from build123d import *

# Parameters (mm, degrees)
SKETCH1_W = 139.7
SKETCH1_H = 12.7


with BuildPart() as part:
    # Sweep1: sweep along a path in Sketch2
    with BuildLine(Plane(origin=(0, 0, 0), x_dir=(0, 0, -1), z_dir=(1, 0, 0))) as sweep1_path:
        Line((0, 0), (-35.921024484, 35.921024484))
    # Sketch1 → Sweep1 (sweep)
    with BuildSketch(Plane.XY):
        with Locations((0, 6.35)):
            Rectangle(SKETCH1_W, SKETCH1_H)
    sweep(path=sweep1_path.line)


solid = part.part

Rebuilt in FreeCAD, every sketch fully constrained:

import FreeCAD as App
import Part
import Sketcher
Q = App.Units.Quantity

doc = App.newDocument("Part")
params = doc.addObject("Spreadsheet::Sheet", "Params")
for row, (alias, value) in enumerate([
    ("sketch1_width", "5.5 in"),
    ("sketch1_height", "0.5 in"),
    ("sketch2_width", "2 in"),
], start=1):
    params.set(f"A{row}", alias)
    params.set(f"B{row}", "=" + value)
    params.setAlias(f"B{row}", alias)

body = doc.addObject("PartDesign::Body", "Body")

sketch1 = doc.addObject("Sketcher::SketchObject", "Sketch")
body.addObject(sketch1)
sketch1.AttachmentSupport = (doc.XY_Plane, [""])
sketch1.MapMode = "FlatFace"
sketch1.addGeometry([
    Part.LineSegment(App.Vector(-70, 13, 0), App.Vector(-70, 0, 0)),
    Part.LineSegment(App.Vector(-70, 0, 0), App.Vector(70, 0, 0)),
    Part.LineSegment(App.Vector(70, 0, 0), App.Vector(70, 13, 0)),
    Part.LineSegment(App.Vector(70, 13, 0), App.Vector(-70, 13, 0)),
], False)
sketch1.addConstraint([
    Sketcher.Constraint("Coincident", 0, 2, 1, 1),
    Sketcher.Constraint("Coincident", 1, 2, 2, 1),
    Sketcher.Constraint("Coincident", 2, 2, 3, 1),
    Sketcher.Constraint("Coincident", 3, 2, 0, 1),
    Sketcher.Constraint("Vertical", 0),
    Sketcher.Constraint("Horizontal", 1),
    Sketcher.Constraint("Vertical", 2),
    Sketcher.Constraint("Horizontal", 3),
    Sketcher.Constraint("Symmetric", 0, 2, 1, 2, -1, 1),
    Sketcher.Constraint("DistanceX", 1, 1, 1, 2, Q("5.5 in")),
    Sketcher.Constraint("DistanceY", 0, 2, 0, 1, Q("0.5 in")),
])
sketch1.setExpression("Constraints[9]", "Params.sketch1_width")
sketch1.setExpression("Constraints[10]", "Params.sketch1_height")

sketch2 = doc.addObject("Sketcher::SketchObject", "Sketch001")
body.addObject(sketch2)
sketch2.Placement = App.Placement(App.Vector(0, 0, 0), App.Rotation(App.Vector(0, 0.707106781, 0.707106781), App.Vector(0.999999999, 0, 0), App.Vector(0, 0.707106781, -0.707106781), "ZXY"))
sketch2.addGeometry(Part.LineSegment(App.Vector(0, 0, 0), App.Vector(51, 0, 0)), False)
sketch2.addConstraint([
    Sketcher.Constraint("Horizontal", 0),
    Sketcher.Constraint("Coincident", 0, 1, -1, 1),
    Sketcher.Constraint("DistanceX", 0, 1, 0, 2, Q("2 in")),
])
sketch2.setExpression("Constraints[2]", "Params.sketch2_width")
doc.recompute()

additivepipe = doc.addObject("PartDesign::AdditivePipe", "AdditivePipe")
body.addObject(additivepipe)
additivepipe.Profile = sketch1
additivepipe.Spine = (sketch2, ["Edge1"])

doc.recompute()
